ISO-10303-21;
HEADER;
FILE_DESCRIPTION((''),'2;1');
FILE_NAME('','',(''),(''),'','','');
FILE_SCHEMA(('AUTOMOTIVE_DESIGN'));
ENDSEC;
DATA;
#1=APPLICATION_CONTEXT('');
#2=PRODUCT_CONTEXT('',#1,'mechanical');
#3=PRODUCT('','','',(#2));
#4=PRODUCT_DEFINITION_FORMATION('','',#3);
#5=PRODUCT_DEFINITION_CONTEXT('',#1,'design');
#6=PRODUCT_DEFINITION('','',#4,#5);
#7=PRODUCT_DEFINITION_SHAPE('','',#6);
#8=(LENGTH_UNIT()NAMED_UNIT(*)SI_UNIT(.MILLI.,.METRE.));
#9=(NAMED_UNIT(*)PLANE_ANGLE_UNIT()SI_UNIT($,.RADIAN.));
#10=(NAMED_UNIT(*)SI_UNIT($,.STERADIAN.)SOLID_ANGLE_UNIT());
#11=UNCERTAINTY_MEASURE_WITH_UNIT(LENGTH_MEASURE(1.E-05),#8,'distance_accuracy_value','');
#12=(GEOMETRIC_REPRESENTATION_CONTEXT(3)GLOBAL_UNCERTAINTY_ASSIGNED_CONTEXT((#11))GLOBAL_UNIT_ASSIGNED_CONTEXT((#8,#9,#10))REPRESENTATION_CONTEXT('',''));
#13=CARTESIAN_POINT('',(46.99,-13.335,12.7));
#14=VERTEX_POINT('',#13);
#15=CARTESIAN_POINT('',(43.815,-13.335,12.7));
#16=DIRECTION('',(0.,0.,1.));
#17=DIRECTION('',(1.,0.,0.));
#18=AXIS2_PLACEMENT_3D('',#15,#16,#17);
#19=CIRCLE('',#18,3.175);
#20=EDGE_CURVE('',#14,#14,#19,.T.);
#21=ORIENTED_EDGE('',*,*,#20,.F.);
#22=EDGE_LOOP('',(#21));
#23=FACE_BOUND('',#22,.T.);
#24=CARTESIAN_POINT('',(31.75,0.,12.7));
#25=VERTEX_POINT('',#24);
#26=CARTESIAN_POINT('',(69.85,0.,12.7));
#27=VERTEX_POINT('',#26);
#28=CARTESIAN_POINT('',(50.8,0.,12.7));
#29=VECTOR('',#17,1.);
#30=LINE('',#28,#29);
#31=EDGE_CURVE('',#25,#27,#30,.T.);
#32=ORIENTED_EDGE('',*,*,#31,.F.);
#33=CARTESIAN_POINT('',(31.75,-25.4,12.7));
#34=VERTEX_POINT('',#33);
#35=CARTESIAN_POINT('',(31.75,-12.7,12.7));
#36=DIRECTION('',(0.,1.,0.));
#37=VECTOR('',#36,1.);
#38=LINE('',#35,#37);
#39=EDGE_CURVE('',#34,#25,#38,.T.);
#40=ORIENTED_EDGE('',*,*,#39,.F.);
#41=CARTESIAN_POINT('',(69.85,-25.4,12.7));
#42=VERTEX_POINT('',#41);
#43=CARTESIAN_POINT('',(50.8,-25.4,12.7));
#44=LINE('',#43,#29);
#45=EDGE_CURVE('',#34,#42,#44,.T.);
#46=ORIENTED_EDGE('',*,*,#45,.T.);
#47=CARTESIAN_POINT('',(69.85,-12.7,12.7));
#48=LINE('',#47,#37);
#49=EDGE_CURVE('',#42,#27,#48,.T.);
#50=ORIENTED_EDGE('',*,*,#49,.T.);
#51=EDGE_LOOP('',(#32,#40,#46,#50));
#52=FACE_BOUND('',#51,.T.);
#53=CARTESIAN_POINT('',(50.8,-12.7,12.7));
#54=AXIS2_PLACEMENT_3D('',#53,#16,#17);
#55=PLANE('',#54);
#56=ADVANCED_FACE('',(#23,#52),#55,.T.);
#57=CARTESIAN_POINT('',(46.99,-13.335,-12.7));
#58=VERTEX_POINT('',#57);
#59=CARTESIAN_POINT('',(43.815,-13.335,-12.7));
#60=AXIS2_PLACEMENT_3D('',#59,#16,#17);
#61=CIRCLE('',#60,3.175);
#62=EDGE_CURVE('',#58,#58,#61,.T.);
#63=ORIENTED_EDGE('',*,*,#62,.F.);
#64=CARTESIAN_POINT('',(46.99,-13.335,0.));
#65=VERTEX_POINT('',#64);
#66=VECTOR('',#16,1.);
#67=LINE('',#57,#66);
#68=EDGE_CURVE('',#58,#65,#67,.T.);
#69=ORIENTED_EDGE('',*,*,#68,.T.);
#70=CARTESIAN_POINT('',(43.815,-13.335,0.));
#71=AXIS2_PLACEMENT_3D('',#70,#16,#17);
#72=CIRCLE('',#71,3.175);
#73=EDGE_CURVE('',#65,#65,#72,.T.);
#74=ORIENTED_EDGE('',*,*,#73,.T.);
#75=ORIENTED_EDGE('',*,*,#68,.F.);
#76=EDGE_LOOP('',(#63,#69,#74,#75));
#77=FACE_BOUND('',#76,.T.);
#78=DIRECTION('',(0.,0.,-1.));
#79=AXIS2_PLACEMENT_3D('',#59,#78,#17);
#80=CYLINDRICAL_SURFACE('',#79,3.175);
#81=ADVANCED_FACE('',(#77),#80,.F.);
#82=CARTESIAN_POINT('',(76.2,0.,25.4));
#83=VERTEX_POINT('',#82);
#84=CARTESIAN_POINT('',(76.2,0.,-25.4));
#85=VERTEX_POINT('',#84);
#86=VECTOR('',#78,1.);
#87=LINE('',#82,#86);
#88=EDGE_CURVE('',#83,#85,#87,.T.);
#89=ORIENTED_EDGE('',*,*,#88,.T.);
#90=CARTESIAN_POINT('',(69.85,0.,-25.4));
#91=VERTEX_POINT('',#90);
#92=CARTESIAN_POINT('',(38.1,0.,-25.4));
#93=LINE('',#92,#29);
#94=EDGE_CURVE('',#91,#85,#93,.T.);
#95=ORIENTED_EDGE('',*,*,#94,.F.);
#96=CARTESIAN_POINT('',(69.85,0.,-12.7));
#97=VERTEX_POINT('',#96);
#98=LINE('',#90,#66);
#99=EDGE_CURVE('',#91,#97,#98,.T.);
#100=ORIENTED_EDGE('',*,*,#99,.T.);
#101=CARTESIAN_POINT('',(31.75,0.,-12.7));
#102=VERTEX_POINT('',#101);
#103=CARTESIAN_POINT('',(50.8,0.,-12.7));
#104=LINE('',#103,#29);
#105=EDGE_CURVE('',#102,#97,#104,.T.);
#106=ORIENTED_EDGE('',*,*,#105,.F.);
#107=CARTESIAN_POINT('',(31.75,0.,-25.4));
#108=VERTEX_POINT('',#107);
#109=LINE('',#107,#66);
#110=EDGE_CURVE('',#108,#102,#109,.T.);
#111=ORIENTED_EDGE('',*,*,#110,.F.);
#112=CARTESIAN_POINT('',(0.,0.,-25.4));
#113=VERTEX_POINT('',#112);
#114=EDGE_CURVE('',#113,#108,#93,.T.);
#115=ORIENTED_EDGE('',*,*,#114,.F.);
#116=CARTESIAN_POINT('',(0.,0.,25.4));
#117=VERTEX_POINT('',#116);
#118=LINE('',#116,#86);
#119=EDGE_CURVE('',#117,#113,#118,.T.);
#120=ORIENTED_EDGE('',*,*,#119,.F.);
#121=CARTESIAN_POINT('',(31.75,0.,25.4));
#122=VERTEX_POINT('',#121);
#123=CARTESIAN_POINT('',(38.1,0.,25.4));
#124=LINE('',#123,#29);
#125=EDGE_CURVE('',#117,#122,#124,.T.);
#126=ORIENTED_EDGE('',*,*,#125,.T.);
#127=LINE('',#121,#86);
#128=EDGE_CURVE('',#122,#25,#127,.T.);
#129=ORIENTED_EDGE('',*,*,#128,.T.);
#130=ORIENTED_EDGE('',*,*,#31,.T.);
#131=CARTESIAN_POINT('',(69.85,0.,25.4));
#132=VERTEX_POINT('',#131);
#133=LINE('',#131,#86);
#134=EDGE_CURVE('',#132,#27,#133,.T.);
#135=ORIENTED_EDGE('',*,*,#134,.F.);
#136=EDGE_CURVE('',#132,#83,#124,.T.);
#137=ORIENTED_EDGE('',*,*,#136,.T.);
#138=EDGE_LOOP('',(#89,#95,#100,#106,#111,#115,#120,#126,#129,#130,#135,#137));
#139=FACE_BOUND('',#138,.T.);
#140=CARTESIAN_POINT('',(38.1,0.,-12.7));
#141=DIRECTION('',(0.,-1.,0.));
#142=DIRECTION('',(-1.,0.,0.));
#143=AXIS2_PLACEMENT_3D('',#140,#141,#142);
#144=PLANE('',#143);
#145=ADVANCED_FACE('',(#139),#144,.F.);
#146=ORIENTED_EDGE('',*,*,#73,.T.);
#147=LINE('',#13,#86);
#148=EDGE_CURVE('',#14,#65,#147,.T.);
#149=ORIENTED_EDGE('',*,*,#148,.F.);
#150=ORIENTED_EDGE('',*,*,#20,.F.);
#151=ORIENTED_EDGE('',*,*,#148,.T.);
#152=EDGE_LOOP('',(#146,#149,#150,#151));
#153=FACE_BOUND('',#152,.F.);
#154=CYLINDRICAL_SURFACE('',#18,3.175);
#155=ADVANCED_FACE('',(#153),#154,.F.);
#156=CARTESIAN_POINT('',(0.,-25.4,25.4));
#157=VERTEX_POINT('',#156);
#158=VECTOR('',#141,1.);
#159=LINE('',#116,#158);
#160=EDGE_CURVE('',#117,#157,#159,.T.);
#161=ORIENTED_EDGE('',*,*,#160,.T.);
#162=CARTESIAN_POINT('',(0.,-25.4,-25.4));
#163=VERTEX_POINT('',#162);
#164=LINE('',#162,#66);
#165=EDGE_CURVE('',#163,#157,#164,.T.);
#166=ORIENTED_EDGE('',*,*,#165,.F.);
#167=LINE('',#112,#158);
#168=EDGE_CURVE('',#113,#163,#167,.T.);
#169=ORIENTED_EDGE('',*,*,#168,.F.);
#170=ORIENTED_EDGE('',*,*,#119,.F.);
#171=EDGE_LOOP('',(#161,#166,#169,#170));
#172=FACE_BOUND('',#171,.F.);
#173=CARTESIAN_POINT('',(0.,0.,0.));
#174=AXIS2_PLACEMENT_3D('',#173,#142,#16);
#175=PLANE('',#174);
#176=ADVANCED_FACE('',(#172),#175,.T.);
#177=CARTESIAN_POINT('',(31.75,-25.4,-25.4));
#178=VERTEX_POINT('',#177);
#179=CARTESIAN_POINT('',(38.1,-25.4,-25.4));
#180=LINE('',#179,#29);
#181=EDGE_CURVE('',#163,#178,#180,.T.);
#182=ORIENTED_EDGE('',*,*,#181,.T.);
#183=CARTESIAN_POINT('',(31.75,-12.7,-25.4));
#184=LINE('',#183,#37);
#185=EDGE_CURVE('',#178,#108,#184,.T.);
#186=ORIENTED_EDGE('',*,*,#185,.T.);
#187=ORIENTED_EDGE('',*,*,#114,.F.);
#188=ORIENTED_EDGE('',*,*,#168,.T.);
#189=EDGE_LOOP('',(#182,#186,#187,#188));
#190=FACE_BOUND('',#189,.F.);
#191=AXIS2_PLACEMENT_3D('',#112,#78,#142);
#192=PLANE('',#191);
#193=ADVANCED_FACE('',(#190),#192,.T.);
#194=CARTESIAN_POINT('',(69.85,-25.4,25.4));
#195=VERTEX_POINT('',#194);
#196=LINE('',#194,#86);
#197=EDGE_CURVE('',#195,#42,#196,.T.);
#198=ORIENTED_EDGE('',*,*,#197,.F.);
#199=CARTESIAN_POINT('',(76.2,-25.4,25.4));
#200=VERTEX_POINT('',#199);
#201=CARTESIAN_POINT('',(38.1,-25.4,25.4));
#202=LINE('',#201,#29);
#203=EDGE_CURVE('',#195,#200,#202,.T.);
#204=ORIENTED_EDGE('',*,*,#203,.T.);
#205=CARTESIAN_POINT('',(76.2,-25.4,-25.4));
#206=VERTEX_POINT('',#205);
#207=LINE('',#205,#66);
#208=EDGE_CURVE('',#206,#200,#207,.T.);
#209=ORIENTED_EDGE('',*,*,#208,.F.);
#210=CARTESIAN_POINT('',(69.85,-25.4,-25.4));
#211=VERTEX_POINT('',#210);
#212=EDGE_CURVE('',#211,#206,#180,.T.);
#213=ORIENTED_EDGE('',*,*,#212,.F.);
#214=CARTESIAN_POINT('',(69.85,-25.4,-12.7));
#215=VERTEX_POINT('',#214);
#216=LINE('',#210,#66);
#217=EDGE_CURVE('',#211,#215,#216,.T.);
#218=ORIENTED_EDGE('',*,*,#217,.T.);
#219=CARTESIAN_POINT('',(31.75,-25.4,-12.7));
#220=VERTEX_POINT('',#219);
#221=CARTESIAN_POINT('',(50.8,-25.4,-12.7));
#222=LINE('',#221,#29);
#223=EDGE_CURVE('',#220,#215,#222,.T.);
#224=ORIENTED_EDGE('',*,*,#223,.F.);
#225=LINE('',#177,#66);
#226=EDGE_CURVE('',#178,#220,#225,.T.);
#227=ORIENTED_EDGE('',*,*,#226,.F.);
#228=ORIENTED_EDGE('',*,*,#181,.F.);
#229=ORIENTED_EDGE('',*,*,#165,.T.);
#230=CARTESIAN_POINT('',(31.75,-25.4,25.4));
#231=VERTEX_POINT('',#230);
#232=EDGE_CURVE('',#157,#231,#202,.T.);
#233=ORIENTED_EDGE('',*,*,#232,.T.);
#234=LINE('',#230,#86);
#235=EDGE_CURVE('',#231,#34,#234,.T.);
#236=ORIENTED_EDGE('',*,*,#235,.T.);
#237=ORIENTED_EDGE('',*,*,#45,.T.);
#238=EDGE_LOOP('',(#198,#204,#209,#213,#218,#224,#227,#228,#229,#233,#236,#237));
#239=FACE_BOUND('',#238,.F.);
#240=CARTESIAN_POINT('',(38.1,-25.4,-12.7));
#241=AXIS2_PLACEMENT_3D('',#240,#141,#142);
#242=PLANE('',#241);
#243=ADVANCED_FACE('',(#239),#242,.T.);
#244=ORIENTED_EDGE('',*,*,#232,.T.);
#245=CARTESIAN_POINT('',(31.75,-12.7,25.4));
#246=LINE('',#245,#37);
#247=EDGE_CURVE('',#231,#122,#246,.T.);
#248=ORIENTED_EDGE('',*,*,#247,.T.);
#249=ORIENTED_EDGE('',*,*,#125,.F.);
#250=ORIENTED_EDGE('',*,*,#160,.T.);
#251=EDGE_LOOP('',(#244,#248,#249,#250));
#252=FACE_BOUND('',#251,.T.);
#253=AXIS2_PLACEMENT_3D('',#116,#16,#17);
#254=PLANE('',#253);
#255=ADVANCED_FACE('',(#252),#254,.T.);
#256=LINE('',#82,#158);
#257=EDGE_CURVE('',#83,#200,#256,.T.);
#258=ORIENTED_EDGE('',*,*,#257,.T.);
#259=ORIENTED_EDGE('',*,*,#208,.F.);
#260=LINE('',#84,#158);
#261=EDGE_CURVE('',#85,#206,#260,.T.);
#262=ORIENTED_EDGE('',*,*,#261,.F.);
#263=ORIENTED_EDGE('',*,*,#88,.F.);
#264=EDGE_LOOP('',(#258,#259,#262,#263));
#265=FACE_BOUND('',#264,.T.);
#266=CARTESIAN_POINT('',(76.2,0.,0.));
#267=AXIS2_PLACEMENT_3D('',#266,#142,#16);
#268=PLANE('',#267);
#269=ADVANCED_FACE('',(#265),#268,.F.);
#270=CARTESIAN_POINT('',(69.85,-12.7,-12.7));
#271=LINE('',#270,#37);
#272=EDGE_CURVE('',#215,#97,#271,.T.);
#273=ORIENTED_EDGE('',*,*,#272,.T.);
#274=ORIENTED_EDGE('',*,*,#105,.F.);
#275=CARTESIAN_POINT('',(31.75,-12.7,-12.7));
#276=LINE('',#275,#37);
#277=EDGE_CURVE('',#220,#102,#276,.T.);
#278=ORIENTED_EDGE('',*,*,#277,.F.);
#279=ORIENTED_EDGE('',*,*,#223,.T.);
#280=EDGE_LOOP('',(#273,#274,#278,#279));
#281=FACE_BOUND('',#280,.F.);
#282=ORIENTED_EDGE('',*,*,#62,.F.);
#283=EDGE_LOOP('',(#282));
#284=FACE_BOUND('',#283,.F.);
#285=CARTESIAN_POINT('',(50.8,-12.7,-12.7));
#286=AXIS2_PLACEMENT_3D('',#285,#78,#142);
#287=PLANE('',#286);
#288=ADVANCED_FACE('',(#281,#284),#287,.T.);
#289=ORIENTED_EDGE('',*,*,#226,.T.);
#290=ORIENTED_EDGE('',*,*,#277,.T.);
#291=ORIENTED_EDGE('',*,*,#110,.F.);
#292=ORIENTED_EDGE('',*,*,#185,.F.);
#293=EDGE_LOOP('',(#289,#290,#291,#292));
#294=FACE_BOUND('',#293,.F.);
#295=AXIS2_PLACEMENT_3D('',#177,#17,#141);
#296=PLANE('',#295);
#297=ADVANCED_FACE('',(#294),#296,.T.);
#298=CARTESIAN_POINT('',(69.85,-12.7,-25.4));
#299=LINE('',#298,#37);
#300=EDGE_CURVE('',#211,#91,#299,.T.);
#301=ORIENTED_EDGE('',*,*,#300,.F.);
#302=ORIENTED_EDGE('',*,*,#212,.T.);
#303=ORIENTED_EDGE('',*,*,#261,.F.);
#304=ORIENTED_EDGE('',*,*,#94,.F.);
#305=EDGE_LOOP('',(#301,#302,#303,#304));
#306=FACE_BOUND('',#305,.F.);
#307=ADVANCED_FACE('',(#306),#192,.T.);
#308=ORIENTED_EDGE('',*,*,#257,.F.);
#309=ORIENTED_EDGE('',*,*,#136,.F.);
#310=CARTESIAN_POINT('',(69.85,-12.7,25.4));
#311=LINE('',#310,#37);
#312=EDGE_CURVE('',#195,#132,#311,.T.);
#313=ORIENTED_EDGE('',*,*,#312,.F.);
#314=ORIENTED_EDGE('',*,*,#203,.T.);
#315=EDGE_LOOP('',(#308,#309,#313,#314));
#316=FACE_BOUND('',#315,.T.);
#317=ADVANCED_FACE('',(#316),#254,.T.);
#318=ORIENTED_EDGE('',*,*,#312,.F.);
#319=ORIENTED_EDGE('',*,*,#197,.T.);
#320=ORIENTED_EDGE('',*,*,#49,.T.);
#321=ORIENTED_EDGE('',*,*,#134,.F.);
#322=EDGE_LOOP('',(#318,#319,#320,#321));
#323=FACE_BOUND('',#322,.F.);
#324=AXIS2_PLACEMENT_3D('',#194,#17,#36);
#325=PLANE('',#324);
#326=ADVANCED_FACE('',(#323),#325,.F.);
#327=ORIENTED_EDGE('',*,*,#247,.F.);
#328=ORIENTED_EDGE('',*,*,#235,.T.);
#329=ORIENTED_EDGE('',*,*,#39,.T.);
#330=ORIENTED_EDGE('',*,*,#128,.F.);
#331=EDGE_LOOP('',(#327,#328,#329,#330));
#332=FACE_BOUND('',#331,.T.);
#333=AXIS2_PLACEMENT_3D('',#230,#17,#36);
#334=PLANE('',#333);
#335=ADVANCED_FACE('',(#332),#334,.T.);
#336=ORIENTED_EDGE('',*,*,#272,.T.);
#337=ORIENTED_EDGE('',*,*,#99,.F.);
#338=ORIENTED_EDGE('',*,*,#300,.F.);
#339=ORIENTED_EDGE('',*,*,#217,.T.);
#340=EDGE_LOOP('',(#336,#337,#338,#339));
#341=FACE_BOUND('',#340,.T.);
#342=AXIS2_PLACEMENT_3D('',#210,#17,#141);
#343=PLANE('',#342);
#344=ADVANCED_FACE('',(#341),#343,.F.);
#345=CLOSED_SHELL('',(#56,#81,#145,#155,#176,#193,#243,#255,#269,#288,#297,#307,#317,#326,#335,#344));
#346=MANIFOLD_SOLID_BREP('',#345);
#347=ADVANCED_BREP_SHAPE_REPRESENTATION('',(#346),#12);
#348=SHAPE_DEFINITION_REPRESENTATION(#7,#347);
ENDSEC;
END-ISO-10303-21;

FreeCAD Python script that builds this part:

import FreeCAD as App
import Part
import Sketcher

V = App.Vector
Q = App.Units.Quantity


def add_polygon(sketch, points):
    """Adds a closed chain of lines whose ends are joined by coincident constraints."""
    first, n = sketch.GeometryCount, len(points)
    for a, b in zip(points, points[1:] + points[:1]):
        sketch.addGeometry(Part.LineSegment(App.Vector(*a, 0), App.Vector(*b, 0)), False)
    for i in range(n):
        sketch.addConstraint(Sketcher.Constraint("Coincident", first + i, 2, first + (i + 1) % n, 1))

doc = App.newDocument("Part")
body = doc.addObject("PartDesign::Body", "Body")

# Sketch on XZ plane
sketch1 = doc.addObject("Sketcher::SketchObject", "Sketch")
body.addObject(sketch1)
sketch1.AttachmentSupport = (doc.XZ_Plane, [""])
sketch1.MapMode = "FlatFace"
add_polygon(sketch1, [(0, 25.4), (0, 0), (76.2, 0), (76.2, 25.4)])  # lines 0-3
sketch1.addConstraint([
    Sketcher.Constraint("Vertical", 0),
    Sketcher.Constraint("Horizontal", 1),
    Sketcher.Constraint("Vertical", 2),
    Sketcher.Constraint("Horizontal", 3),
    Sketcher.Constraint("Coincident", 0, 2, -1, 1),
    Sketcher.Constraint("DistanceX", 1, 1, 1, 2, Q("3 in")),
    Sketcher.Constraint("DistanceY", 0, 2, 0, 1, Q("1 in")),
])
pad1 = doc.addObject("PartDesign::Pad", "Pad")
body.addObject(pad1)
pad1.Profile = sketch1
pad1.Length = Q("1 in")

# Sketch on XY plane
sketch2 = doc.addObject("Sketcher::SketchObject", "Sketch001")
body.addObject(sketch2)
sketch2.AttachmentSupport = (doc.XY_Plane, [""])
sketch2.MapMode = "FlatFace"
sketch2.AttachmentOffset = App.Placement(V(0, 0, 1 * 25.4), App.Rotation())
add_polygon(sketch2, [(31.75, 0), (31.75, -25.4), (69.85, -25.4), (69.85, 0)])  # lines 0-3
sketch2.addConstraint([
    Sketcher.Constraint("Vertical", 0),
    Sketcher.Constraint("Horizontal", 1),
    Sketcher.Constraint("Vertical", 2),
    Sketcher.Constraint("Horizontal", 3),
    Sketcher.Constraint("PointOnObject", 2, 2, -1),
    Sketcher.Constraint("DistanceY", 0, 2, 0, 1, Q("1 in")),
    Sketcher.Constraint("DistanceX", 1, 1, 1, 2, Q("1.5 in")),
    Sketcher.Constraint("DistanceX", -1, 1, 0, 2, Q("1.25 in")),
])
pocket1 = doc.addObject("PartDesign::Pocket", "Pocket")
body.addObject(pocket1)
pocket1.Profile = sketch2
pocket1.Length = Q("0.5 in")

# Sketch on XY plane
sketch3 = doc.addObject("Sketcher::SketchObject", "Sketch002")
body.addObject(sketch3)
sketch3.AttachmentSupport = (doc.XY_Plane, [""])
sketch3.MapMode = "FlatFace"
sketch3.AttachmentOffset = App.Placement(V(0, 0, 0.5 * 25.4), App.Rotation())
sketch3.addGeometry(Part.Circle(V(43.815, -13.335, 0), V(0, 0, 1), 3.175), False)
sketch3.addConstraint([
    Sketcher.Constraint("Diameter", 0, Q("0.25 in")),
    Sketcher.Constraint("DistanceX", -1, 1, 0, 3, Q("1.725 in")),
    Sketcher.Constraint("DistanceY", 0, 3, -1, 1, Q("0.525 in")),
])
pocket2 = doc.addObject("PartDesign::Pocket", "Pocket001")
body.addObject(pocket2)
pocket2.Profile = sketch3
pocket2.Length = Q("0.5 in")
body2 = doc.addObject("PartDesign::Body", "Body001")
doc.recompute()

body2.BaseFeature = body
doc.recompute()

mirroring = doc.addObject("Part::Mirroring", "Mirroring")
mirroring.Source = body
mirroring.Base = V(0, 0, 0)
mirroring.Normal = V(0, 0, 1)
body3 = doc.addObject("PartDesign::Body", "Body002")
body3.BaseFeature = mirroring
boolean = doc.addObject("PartDesign::Boolean", "Boolean")
body2.addObject(boolean)
boolean.Type = "Fuse"
boolean.addObjects([body3])
doc.recompute()
mirroring.Visibility = False

doc.recompute()
